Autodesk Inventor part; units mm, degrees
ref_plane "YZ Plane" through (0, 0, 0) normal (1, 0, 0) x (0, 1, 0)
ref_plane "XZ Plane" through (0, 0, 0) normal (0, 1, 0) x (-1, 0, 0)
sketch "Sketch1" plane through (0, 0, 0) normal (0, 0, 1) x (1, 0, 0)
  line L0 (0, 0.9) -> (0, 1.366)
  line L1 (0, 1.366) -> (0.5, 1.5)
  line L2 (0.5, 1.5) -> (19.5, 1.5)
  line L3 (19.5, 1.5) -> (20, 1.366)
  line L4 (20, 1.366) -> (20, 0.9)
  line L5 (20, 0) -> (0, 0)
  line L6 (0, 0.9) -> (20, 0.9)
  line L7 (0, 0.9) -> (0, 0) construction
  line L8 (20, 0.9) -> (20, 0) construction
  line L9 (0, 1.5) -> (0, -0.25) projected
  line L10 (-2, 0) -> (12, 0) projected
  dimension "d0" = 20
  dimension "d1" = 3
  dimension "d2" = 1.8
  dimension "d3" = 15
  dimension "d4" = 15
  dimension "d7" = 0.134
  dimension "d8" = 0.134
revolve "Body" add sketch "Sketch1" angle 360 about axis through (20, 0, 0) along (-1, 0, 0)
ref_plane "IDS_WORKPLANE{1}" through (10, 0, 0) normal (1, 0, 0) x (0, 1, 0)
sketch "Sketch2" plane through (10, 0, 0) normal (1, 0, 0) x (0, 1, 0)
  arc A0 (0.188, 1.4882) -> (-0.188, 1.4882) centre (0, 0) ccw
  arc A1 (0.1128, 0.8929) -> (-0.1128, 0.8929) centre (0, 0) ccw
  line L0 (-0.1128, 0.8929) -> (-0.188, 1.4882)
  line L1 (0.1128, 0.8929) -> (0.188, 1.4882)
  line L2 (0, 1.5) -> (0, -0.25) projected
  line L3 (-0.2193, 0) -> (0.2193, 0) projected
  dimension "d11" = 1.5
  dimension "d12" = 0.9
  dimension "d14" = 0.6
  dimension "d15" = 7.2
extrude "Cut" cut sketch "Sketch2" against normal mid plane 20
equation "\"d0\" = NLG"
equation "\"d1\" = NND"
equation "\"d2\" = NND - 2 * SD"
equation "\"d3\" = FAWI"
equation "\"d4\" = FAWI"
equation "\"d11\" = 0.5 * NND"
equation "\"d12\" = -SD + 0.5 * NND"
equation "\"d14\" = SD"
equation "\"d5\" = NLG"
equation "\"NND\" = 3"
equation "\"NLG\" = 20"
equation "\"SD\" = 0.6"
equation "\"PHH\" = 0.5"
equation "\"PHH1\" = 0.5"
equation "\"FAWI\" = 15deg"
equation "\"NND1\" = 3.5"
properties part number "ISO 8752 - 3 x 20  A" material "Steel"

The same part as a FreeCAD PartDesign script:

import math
import FreeCAD as App
import Part
import Sketcher

V = App.Vector
Q = App.Units.Quantity

doc = App.newDocument("Part")
body = doc.addObject("PartDesign::Body", "Body")

# Sketch on XY plane
sketch1 = body.newObject("Sketcher::SketchObject", "Sketch")
sketch1.AttachmentSupport = (doc.getObject("XY_Plane"), [""])
sketch1.MapMode = "FlatFace"
sketch1.addGeometry(Part.LineSegment(V(0, 1.366, 0), V(0, 0.9, 0)), False)
sketch1.addGeometry(Part.LineSegment(V(0, 0.9, 0), V(20, 0.9, 0)), False)
sketch1.addGeometry(Part.LineSegment(V(20, 0.9, 0), V(20, 1.366, 0)), False)
sketch1.addGeometry(Part.LineSegment(V(20, 1.366, 0), V(19.5, 1.5, 0)), False)
sketch1.addGeometry(Part.LineSegment(V(19.5, 1.5, 0), V(0.5, 1.5, 0)), False)
sketch1.addGeometry(Part.LineSegment(V(0.5, 1.5, 0), V(0, 1.366, 0)), False)
sketch1.addConstraint(Sketcher.Constraint("Coincident", 0, 2, 1, 1))
sketch1.addConstraint(Sketcher.Constraint("Coincident", 1, 2, 2, 1))
sketch1.addConstraint(Sketcher.Constraint("Coincident", 2, 2, 3, 1))
sketch1.addConstraint(Sketcher.Constraint("Coincident", 3, 2, 4, 1))
sketch1.addConstraint(Sketcher.Constraint("Coincident", 4, 2, 5, 1))
sketch1.addConstraint(Sketcher.Constraint("Coincident", 5, 2, 0, 1))
sketch1.addConstraint(Sketcher.Constraint("Vertical", 0))
sketch1.addConstraint(Sketcher.Constraint("Horizontal", 1))
sketch1.addConstraint(Sketcher.Constraint("Vertical", 2))
sketch1.addConstraint(Sketcher.Constraint("Horizontal", 4))
sketch1.addConstraint(Sketcher.Constraint("PointOnObject", 0, 2, -2))
sketch1.addConstraint(Sketcher.Constraint("Horizontal", 2, 2, 5, 2))
sketch1.addConstraint(Sketcher.Constraint("Equal", 3, 5))
sketch1.addConstraint(Sketcher.Constraint("DistanceX", 1, 1, 1, 2, 20.0))
sketch1.addConstraint(Sketcher.Constraint("DistanceX", 4, 2, 4, 1, 19.0))
sketch1.addConstraint(Sketcher.Constraint("DistanceY", 2, 2, 3, 2, 0.134))
sketch1.addConstraint(Sketcher.Constraint("DistanceY", -1, 1, 0, 2, 0.9))
sketch1.addConstraint(Sketcher.Constraint("DistanceY", -1, 1, 3, 2, 1.5))
revolution = body.newObject("PartDesign::Revolution", "Revolution")
revolution.Profile = sketch1
revolution.ReferenceAxis = (sketch1, ["H_Axis"])
revolution.Angle = 360

# Sketch on YZ plane
sketch2 = body.newObject("Sketcher::SketchObject", "Sketch001")
sketch2.AttachmentSupport = (doc.getObject("YZ_Plane"), [""])
sketch2.MapMode = "FlatFace"
sketch2.AttachmentOffset = App.Placement(V(0, 0, 10), App.Rotation())
sketch2.addGeometry(Part.LineSegment(V(0.1128, 0.8929, 0), V(0.188, 1.4882, 0)), False)
sketch2.addGeometry(Part.ArcOfCircle(Part.Circle(V(0, 0, 0), V(0, 0, 1), 1.500028), math.radians(82.800128), math.radians(97.199872)), False)
sketch2.addGeometry(Part.LineSegment(V(-0.188, 1.4882, 0), V(-0.1128, 0.8929, 0)), False)
sketch2.addGeometry(Part.ArcOfCircle(Part.Circle(V(0, 0, 0), V(0, 0, 1), 0.899997), math.radians(82.799969), math.radians(97.200031)), False)
sketch2.addConstraint(Sketcher.Constraint("Coincident", 0, 2, 1, 1))
sketch2.addConstraint(Sketcher.Constraint("Coincident", 1, 2, 2, 1))
sketch2.addConstraint(Sketcher.Constraint("Coincident", 2, 2, 3, 2))
sketch2.addConstraint(Sketcher.Constraint("Coincident", 3, 1, 0, 1))
sketch2.addConstraint(Sketcher.Constraint("Coincident", 1, 3, -1, 1))
sketch2.addConstraint(Sketcher.Constraint("Coincident", 3, 3, -1, 1))
sketch2.addConstraint(Sketcher.Constraint("Horizontal", 0, 2, 1, 2))
sketch2.addConstraint(Sketcher.Constraint("Horizontal", 2, 2, 3, 1))
sketch2.addConstraint(Sketcher.Constraint("Radius", 1, 1.5))
sketch2.addConstraint(Sketcher.Constraint("Radius", 3, 0.9))
sketch2.addConstraint(Sketcher.Constraint("Angle", 0, Q("82.8004 deg")))
sketch2.addConstraint(Sketcher.Constraint("DistanceX", -1, 1, 0, 2, 0.188))
pocket1 = body.newObject("PartDesign::Pocket", "Pocket")
pocket1.Profile = sketch2
pocket1.Length = 20
pocket1.Midplane = True

doc.recompute()
